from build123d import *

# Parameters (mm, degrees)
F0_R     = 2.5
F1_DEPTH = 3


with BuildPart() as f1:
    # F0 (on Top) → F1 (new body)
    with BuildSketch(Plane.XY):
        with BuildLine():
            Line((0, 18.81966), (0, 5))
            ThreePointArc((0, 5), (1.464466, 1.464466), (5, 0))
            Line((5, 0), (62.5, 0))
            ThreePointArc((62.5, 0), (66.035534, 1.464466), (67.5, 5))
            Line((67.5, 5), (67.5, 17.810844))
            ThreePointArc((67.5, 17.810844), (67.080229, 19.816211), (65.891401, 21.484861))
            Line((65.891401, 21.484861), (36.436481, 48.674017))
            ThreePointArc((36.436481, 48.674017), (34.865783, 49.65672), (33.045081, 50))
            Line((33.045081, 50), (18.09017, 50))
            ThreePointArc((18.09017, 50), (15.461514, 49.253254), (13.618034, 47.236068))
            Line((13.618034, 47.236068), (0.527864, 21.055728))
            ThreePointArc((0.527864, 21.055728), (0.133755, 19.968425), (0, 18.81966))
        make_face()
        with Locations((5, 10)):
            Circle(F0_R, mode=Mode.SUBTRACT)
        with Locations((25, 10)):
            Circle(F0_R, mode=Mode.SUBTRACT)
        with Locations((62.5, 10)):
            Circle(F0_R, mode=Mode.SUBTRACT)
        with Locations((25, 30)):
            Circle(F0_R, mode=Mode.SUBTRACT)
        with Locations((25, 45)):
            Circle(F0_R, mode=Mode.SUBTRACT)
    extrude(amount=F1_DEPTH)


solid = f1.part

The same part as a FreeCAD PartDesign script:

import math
import FreeCAD as App
import Part
import Sketcher
Q = App.Units.Quantity

doc = App.newDocument("Part")
params = doc.addObject("Spreadsheet::Sheet", "Params")
for row, (alias, value) in enumerate([
    ("sketch1_diameter", "5 mm"),
    ("sketch1_diameter2", "5 mm"),
    ("sketch1_diameter3", "5 mm"),
    ("sketch1_diameter4", "5 mm"),
    ("sketch1_diameter5", "5 mm"),
    ("pad1_length", "3 mm"),
], start=1):
    params.set(f"A{row}", alias)
    params.set(f"B{row}", "=" + value)
    params.setAlias(f"B{row}", alias)

body = doc.addObject("PartDesign::Body", "Body")

sketch1 = doc.addObject("Sketcher::SketchObject", "Sketch")
body.addObject(sketch1)
sketch1.AttachmentSupport = (doc.XY_Plane, [""])
sketch1.MapMode = "FlatFace"
sketch1.addGeometry([
    Part.LineSegment(App.Vector(0, 18.81966, 0), App.Vector(0, 5, 0)),
    Part.ArcOfCircle(Part.Circle(App.Vector(5, 5, 0), App.Vector(0, 0, 1), 5), math.radians(179.999996), math.radians(270.000004)),
    Part.LineSegment(App.Vector(5, 0, 0), App.Vector(62.5, 0, 0)),
    Part.ArcOfCircle(Part.Circle(App.Vector(62.5, 5, 0), App.Vector(0, 0, 1), 5), math.radians(-90.000004), math.radians(0.000004)),
    Part.LineSegment(App.Vector(67.5, 5, 0), App.Vector(67.5, 17.810844, 0)),
    Part.ArcOfCircle(Part.Circle(App.Vector(62.499993, 17.810841, 0), App.Vector(0, 0, 1), 5.000007), math.radians(0.000032), math.radians(47.290567)),
    Part.LineSegment(App.Vector(65.891401, 21.484861, 0), App.Vector(36.436481, 48.674017, 0)),
    Part.ArcOfCircle(Part.Circle(App.Vector(33.04508, 45, 0), App.Vector(0, 0, 1), 5), math.radians(47.290608), math.radians(89.999989)),
    Part.LineSegment(App.Vector(33.045081, 50, 0), App.Vector(18.09017, 50, 0)),
    Part.ArcOfCircle(Part.Circle(App.Vector(18.090169, 45.000001, 0), App.Vector(0, 0, 1), 4.999999), math.radians(89.999993), math.radians(153.434955)),
    Part.LineSegment(App.Vector(13.618034, 47.236068, 0), App.Vector(0.527864, 21.055728, 0)),
    Part.ArcOfCircle(Part.Circle(App.Vector(4.999996, 18.819661, 0), App.Vector(0, 0, 1), 4.999996), math.radians(153.434938), math.radians(180.000013)),
    Part.Circle(App.Vector(5, 10, 0), App.Vector(0, 0, 1), 2.5),
    Part.Circle(App.Vector(25, 10, 0), App.Vector(0, 0, 1), 2.5),
    Part.Circle(App.Vector(62.5, 10, 0), App.Vector(0, 0, 1), 2.5),
    Part.Circle(App.Vector(25, 30, 0), App.Vector(0, 0, 1), 2.5),
    Part.Circle(App.Vector(25, 45, 0), App.Vector(0, 0, 1), 2.5),
], False)
sketch1.addConstraint([
    Sketcher.Constraint("Coincident", 0, 2, 1, 1),
    Sketcher.Constraint("Coincident", 1, 2, 2, 1),
    Sketcher.Constraint("Coincident", 2, 2, 3, 1),
    Sketcher.Constraint("Coincident", 3, 2, 4, 1),
    Sketcher.Constraint("Coincident", 4, 2, 5, 1),
    Sketcher.Constraint("Coincident", 5, 2, 6, 1),
    Sketcher.Constraint("Coincident", 6, 2, 7, 1),
    Sketcher.Constraint("Coincident", 7, 2, 8, 1),
    Sketcher.Constraint("Coincident", 8, 2, 9, 1),
    Sketcher.Constraint("Coincident", 9, 2, 10, 1),
    Sketcher.Constraint("Coincident", 10, 2, 11, 1),
    Sketcher.Constraint("Coincident", 11, 2, 0, 1),
    Sketcher.Constraint("Vertical", 0),
    Sketcher.Constraint("Horizontal", 2),
    Sketcher.Constraint("Vertical", 4),
    Sketcher.Constraint("Horizontal", 8),
    Sketcher.Constraint("PointOnObject", 0, 2, -2),
    Sketcher.Constraint("PointOnObject", 1, 2, -1),
    Sketcher.Constraint("Diameter", 12, Q("5 mm")),
    Sketcher.Constraint("Diameter", 13, Q("5 mm")),
    Sketcher.Constraint("Diameter", 14, Q("5 mm")),
    Sketcher.Constraint("Diameter", 15, Q("5 mm")),
    Sketcher.Constraint("Diameter", 16, Q("5 mm")),
    Sketcher.Constraint("Radius", 1, Q("5 mm")),
    Sketcher.Constraint("Radius", 3, Q("5 mm")),
    Sketcher.Constraint("Radius", 7, Q("5 mm")),
    Sketcher.Constraint("Radius", 9, Q("4.999999 mm")),
    Sketcher.Constraint("DistanceX", 2, 1, 2, 2, Q("57.5 mm")),
    Sketcher.Constraint("DistanceY", -1, 1, 7, 3, Q("45 mm")),
    Sketcher.Constraint("DistanceX", -1, 1, 12, 3, Q("5 mm")),
    Sketcher.Constraint("DistanceY", -1, 1, 12, 3, Q("10 mm")),
    Sketcher.Constraint("DistanceX", -1, 1, 13, 3, Q("25 mm")),
    Sketcher.Constraint("DistanceY", -1, 1, 13, 3, Q("10 mm")),
    Sketcher.Constraint("DistanceY", -1, 1, 14, 3, Q("10 mm")),
    Sketcher.Constraint("DistanceX", -1, 1, 15, 3, Q("25 mm")),
    Sketcher.Constraint("DistanceY", -1, 1, 15, 3, Q("30 mm")),
    Sketcher.Constraint("DistanceX", -1, 1, 16, 3, Q("25 mm")),
    Sketcher.Constraint("DistanceY", -1, 1, 16, 3, Q("45 mm")),
    Sketcher.Constraint("DistanceY", -1, 1, 0, 2, Q("5 mm")),
    Sketcher.Constraint("DistanceX", -1, 1, 1, 2, Q("5 mm")),
    Sketcher.Constraint("DistanceY", -1, 1, 3, 2, Q("5 mm")),
    Sketcher.Constraint("DistanceX", 14, 3, 3, 2, Q("5 mm")),
    Sketcher.Constraint("DistanceX", 2, 2, 3, 2, Q("5 mm")),
    Sketcher.Constraint("Radius", 5, Q("5.000007 mm")),
    Sketcher.Constraint("Radius", 11, Q("4.999996 mm")),
    Sketcher.Constraint("DistanceX", 8, 2, 8, 1, Q("14.954911 mm")),
    Sketcher.Constraint("DistanceY", 0, 2, 0, 1, Q("13.81966 mm")),
    Sketcher.Constraint("DistanceX", -1, 1, 5, 2, Q("65.891401 mm")),
    Sketcher.Constraint("DistanceX", 7, 3, 6, 2, Q("3.391401 mm")),
    Sketcher.Constraint("DistanceX", 7, 2, 6, 2, Q("3.3914 mm")),
    Sketcher.Constraint("Distance", 6, Q("40.08544 mm")),
    Sketcher.Constraint("Distance", 10, Q("29.27051 mm")),
    Sketcher.Constraint("DistanceY", 4, 1, 4, 2, Q("12.810844 mm")),
    Sketcher.Constraint("DistanceY", -1, 1, 5, 3, Q("17.810841 mm")),
    Sketcher.Constraint("DistanceX", -1, 1, 9, 3, Q("18.090169 mm")),
    Sketcher.Constraint("DistanceY", -1, 1, 11, 3, Q("18.819661 mm")),
    Sketcher.Constraint("DistanceY", 7, 3, 9, 2, Q("2.236068 mm")),
])
sketch1.setExpression("Constraints[18]", "Params.sketch1_diameter")
sketch1.setExpression("Constraints[19]", "Params.sketch1_diameter2")
sketch1.setExpression("Constraints[20]", "Params.sketch1_diameter3")
sketch1.setExpression("Constraints[21]", "Params.sketch1_diameter4")
sketch1.setExpression("Constraints[22]", "Params.sketch1_diameter5")
pad1 = doc.addObject("PartDesign::Pad", "Pad")
body.addObject(pad1)
pad1.Profile = sketch1
pad1.setExpression("Length", "Params.pad1_length")

doc.recompute()
